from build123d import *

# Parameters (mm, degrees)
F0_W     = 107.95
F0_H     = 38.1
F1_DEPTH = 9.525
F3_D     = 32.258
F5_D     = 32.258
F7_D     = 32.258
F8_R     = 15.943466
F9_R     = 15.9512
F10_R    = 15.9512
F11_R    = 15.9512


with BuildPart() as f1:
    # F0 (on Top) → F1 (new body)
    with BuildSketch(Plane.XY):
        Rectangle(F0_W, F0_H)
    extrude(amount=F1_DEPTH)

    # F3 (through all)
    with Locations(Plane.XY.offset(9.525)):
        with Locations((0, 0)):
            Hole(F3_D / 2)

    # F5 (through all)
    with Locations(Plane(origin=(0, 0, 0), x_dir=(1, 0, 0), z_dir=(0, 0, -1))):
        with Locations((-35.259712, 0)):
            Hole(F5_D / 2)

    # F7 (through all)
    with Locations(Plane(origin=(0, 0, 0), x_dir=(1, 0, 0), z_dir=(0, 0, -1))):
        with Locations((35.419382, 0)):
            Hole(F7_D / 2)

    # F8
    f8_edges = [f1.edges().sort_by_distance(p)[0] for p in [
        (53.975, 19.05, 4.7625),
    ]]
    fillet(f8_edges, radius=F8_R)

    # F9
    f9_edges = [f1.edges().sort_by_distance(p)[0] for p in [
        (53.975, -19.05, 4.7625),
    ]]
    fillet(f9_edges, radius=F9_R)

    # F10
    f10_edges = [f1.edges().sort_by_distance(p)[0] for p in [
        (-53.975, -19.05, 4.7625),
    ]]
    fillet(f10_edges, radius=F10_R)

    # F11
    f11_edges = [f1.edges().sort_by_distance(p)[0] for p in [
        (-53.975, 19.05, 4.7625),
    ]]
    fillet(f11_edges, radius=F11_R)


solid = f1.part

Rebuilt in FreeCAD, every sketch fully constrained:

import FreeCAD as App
import Part
import Sketcher

V = App.Vector
Q = App.Units.Quantity


def edges_at(feature, points):
    """Names of the edges that pass closest to the given points."""
    edges = feature.Shape.Edges
    near = lambda p: min(range(len(edges)), key=lambda i: edges[i].distToShape(Part.Vertex(*p))[0])
    return sorted({f"Edge{near(p) + 1}" for p in points})

doc = App.newDocument("Part")
body = doc.addObject("PartDesign::Body", "Body")

sketch1 = body.newObject("Sketcher::SketchObject", "Sketch")
sketch1.AttachmentSupport = (doc.getObject("XY_Plane"), [""])
sketch1.MapMode = "FlatFace"
sketch1.addGeometry([
    Part.LineSegment(V(-54, 19, 0), V(-54, -19, 0)),
    Part.LineSegment(V(-54, -19, 0), V(54, -19, 0)),
    Part.LineSegment(V(54, -19, 0), V(54, 19, 0)),
    Part.LineSegment(V(54, 19, 0), V(-54, 19, 0)),
], False)
sketch1.addConstraint([
    Sketcher.Constraint("Coincident", 0, 2, 1, 1),
    Sketcher.Constraint("Coincident", 1, 2, 2, 1),
    Sketcher.Constraint("Coincident", 2, 2, 3, 1),
    Sketcher.Constraint("Coincident", 3, 2, 0, 1),
    Sketcher.Constraint("Vertical", 0),
    Sketcher.Constraint("Horizontal", 1),
    Sketcher.Constraint("Vertical", 2),
    Sketcher.Constraint("Horizontal", 3),
    Sketcher.Constraint("Symmetric", 0, 2, 2, 2, -1, 1),
    Sketcher.Constraint("DistanceY", 0, 2, 0, 1, Q("1.5 in")),
    Sketcher.Constraint("DistanceX", 1, 1, 1, 2, Q("4.25 in")),
])
pad1 = body.newObject("PartDesign::Pad", "Pad")
pad1.Profile = sketch1
pad1.Length = Q("0.375 in")

sketch2 = body.newObject("Sketcher::SketchObject", "Sketch001")
sketch2.AttachmentSupport = (doc.getObject("XY_Plane"), [""])
sketch2.MapMode = "FlatFace"
sketch2.AttachmentOffset = App.Placement(V(0, 0, 0.375 * 25.4), App.Rotation())
sketch2.addGeometry(Part.Circle(V(0, 0, 0), V(0, 0, 1), 16), False)
sketch2.addConstraint([
    Sketcher.Constraint("Coincident", 0, 3, -1, 1),
    Sketcher.Constraint("Diameter", 0, Q("1.27 in")),
])
doc.recompute()
hole = body.newObject("PartDesign::Hole", "Hole")
hole.Profile = sketch2
hole.ThreadType = "None"
hole.Diameter = Q("1.27 in")
hole.DepthType = "ThroughAll"

sketch3 = body.newObject("Sketcher::SketchObject", "Sketch002")
sketch3.AttachmentSupport = (doc.getObject("XY_Plane"), [""])
sketch3.MapMode = "FlatFace"
sketch3.addGeometry(Part.Circle(V(-35, 0, 0), V(0, 0, 1), 16), False)
sketch3.addConstraint([
    Sketcher.Constraint("PointOnObject", 0, 3, -1),
    Sketcher.Constraint("Diameter", 0, Q("1.27 in")),
    Sketcher.Constraint("DistanceX", 0, 3, -1, 1, 35.259712),
])
doc.recompute()
hole2 = body.newObject("PartDesign::Hole", "Hole001")
hole2.Profile = sketch3
hole2.ThreadType = "None"
hole2.Diameter = Q("1.27 in")
hole2.DepthType = "ThroughAll"
hole2.Reversed = True

sketch4 = body.newObject("Sketcher::SketchObject", "Sketch003")
sketch4.AttachmentSupport = (doc.getObject("XY_Plane"), [""])
sketch4.MapMode = "FlatFace"
sketch4.addGeometry(Part.Circle(V(35, 0, 0), V(0, 0, 1), 16), False)
sketch4.addConstraint([
    Sketcher.Constraint("PointOnObject", 0, 3, -1),
    Sketcher.Constraint("Diameter", 0, Q("1.27 in")),
    Sketcher.Constraint("DistanceX", -1, 1, 0, 3, 35.419382),
])
doc.recompute()
hole3 = body.newObject("PartDesign::Hole", "Hole002")
hole3.Profile = sketch4
hole3.ThreadType = "None"
hole3.Diameter = Q("1.27 in")
hole3.DepthType = "ThroughAll"
hole3.Reversed = True
doc.recompute()

fillet = body.newObject("PartDesign::Fillet", "Fillet")
fillet.Base = (hole3, edges_at(hole3, [(53.975, 19.05, 4.763)]))
fillet.Radius = 15.943466
doc.recompute()

fillet2 = body.newObject("PartDesign::Fillet", "Fillet001")
fillet2.Base = (fillet, edges_at(fillet, [(53.975, -19.05, 4.763)]))
fillet2.Radius = Q("0.628 in")
doc.recompute()

fillet3 = body.newObject("PartDesign::Fillet", "Fillet002")
fillet3.Base = (fillet2, edges_at(fillet2, [(-53.975, -19.05, 4.763)]))
fillet3.Radius = Q("0.628 in")
doc.recompute()

fillet4 = body.newObject("PartDesign::Fillet", "Fillet003")
fillet4.Base = (fillet3, edges_at(fillet3, [(-53.975, 19.05, 4.763)]))
fillet4.Radius = Q("0.628 in")

doc.recompute()
